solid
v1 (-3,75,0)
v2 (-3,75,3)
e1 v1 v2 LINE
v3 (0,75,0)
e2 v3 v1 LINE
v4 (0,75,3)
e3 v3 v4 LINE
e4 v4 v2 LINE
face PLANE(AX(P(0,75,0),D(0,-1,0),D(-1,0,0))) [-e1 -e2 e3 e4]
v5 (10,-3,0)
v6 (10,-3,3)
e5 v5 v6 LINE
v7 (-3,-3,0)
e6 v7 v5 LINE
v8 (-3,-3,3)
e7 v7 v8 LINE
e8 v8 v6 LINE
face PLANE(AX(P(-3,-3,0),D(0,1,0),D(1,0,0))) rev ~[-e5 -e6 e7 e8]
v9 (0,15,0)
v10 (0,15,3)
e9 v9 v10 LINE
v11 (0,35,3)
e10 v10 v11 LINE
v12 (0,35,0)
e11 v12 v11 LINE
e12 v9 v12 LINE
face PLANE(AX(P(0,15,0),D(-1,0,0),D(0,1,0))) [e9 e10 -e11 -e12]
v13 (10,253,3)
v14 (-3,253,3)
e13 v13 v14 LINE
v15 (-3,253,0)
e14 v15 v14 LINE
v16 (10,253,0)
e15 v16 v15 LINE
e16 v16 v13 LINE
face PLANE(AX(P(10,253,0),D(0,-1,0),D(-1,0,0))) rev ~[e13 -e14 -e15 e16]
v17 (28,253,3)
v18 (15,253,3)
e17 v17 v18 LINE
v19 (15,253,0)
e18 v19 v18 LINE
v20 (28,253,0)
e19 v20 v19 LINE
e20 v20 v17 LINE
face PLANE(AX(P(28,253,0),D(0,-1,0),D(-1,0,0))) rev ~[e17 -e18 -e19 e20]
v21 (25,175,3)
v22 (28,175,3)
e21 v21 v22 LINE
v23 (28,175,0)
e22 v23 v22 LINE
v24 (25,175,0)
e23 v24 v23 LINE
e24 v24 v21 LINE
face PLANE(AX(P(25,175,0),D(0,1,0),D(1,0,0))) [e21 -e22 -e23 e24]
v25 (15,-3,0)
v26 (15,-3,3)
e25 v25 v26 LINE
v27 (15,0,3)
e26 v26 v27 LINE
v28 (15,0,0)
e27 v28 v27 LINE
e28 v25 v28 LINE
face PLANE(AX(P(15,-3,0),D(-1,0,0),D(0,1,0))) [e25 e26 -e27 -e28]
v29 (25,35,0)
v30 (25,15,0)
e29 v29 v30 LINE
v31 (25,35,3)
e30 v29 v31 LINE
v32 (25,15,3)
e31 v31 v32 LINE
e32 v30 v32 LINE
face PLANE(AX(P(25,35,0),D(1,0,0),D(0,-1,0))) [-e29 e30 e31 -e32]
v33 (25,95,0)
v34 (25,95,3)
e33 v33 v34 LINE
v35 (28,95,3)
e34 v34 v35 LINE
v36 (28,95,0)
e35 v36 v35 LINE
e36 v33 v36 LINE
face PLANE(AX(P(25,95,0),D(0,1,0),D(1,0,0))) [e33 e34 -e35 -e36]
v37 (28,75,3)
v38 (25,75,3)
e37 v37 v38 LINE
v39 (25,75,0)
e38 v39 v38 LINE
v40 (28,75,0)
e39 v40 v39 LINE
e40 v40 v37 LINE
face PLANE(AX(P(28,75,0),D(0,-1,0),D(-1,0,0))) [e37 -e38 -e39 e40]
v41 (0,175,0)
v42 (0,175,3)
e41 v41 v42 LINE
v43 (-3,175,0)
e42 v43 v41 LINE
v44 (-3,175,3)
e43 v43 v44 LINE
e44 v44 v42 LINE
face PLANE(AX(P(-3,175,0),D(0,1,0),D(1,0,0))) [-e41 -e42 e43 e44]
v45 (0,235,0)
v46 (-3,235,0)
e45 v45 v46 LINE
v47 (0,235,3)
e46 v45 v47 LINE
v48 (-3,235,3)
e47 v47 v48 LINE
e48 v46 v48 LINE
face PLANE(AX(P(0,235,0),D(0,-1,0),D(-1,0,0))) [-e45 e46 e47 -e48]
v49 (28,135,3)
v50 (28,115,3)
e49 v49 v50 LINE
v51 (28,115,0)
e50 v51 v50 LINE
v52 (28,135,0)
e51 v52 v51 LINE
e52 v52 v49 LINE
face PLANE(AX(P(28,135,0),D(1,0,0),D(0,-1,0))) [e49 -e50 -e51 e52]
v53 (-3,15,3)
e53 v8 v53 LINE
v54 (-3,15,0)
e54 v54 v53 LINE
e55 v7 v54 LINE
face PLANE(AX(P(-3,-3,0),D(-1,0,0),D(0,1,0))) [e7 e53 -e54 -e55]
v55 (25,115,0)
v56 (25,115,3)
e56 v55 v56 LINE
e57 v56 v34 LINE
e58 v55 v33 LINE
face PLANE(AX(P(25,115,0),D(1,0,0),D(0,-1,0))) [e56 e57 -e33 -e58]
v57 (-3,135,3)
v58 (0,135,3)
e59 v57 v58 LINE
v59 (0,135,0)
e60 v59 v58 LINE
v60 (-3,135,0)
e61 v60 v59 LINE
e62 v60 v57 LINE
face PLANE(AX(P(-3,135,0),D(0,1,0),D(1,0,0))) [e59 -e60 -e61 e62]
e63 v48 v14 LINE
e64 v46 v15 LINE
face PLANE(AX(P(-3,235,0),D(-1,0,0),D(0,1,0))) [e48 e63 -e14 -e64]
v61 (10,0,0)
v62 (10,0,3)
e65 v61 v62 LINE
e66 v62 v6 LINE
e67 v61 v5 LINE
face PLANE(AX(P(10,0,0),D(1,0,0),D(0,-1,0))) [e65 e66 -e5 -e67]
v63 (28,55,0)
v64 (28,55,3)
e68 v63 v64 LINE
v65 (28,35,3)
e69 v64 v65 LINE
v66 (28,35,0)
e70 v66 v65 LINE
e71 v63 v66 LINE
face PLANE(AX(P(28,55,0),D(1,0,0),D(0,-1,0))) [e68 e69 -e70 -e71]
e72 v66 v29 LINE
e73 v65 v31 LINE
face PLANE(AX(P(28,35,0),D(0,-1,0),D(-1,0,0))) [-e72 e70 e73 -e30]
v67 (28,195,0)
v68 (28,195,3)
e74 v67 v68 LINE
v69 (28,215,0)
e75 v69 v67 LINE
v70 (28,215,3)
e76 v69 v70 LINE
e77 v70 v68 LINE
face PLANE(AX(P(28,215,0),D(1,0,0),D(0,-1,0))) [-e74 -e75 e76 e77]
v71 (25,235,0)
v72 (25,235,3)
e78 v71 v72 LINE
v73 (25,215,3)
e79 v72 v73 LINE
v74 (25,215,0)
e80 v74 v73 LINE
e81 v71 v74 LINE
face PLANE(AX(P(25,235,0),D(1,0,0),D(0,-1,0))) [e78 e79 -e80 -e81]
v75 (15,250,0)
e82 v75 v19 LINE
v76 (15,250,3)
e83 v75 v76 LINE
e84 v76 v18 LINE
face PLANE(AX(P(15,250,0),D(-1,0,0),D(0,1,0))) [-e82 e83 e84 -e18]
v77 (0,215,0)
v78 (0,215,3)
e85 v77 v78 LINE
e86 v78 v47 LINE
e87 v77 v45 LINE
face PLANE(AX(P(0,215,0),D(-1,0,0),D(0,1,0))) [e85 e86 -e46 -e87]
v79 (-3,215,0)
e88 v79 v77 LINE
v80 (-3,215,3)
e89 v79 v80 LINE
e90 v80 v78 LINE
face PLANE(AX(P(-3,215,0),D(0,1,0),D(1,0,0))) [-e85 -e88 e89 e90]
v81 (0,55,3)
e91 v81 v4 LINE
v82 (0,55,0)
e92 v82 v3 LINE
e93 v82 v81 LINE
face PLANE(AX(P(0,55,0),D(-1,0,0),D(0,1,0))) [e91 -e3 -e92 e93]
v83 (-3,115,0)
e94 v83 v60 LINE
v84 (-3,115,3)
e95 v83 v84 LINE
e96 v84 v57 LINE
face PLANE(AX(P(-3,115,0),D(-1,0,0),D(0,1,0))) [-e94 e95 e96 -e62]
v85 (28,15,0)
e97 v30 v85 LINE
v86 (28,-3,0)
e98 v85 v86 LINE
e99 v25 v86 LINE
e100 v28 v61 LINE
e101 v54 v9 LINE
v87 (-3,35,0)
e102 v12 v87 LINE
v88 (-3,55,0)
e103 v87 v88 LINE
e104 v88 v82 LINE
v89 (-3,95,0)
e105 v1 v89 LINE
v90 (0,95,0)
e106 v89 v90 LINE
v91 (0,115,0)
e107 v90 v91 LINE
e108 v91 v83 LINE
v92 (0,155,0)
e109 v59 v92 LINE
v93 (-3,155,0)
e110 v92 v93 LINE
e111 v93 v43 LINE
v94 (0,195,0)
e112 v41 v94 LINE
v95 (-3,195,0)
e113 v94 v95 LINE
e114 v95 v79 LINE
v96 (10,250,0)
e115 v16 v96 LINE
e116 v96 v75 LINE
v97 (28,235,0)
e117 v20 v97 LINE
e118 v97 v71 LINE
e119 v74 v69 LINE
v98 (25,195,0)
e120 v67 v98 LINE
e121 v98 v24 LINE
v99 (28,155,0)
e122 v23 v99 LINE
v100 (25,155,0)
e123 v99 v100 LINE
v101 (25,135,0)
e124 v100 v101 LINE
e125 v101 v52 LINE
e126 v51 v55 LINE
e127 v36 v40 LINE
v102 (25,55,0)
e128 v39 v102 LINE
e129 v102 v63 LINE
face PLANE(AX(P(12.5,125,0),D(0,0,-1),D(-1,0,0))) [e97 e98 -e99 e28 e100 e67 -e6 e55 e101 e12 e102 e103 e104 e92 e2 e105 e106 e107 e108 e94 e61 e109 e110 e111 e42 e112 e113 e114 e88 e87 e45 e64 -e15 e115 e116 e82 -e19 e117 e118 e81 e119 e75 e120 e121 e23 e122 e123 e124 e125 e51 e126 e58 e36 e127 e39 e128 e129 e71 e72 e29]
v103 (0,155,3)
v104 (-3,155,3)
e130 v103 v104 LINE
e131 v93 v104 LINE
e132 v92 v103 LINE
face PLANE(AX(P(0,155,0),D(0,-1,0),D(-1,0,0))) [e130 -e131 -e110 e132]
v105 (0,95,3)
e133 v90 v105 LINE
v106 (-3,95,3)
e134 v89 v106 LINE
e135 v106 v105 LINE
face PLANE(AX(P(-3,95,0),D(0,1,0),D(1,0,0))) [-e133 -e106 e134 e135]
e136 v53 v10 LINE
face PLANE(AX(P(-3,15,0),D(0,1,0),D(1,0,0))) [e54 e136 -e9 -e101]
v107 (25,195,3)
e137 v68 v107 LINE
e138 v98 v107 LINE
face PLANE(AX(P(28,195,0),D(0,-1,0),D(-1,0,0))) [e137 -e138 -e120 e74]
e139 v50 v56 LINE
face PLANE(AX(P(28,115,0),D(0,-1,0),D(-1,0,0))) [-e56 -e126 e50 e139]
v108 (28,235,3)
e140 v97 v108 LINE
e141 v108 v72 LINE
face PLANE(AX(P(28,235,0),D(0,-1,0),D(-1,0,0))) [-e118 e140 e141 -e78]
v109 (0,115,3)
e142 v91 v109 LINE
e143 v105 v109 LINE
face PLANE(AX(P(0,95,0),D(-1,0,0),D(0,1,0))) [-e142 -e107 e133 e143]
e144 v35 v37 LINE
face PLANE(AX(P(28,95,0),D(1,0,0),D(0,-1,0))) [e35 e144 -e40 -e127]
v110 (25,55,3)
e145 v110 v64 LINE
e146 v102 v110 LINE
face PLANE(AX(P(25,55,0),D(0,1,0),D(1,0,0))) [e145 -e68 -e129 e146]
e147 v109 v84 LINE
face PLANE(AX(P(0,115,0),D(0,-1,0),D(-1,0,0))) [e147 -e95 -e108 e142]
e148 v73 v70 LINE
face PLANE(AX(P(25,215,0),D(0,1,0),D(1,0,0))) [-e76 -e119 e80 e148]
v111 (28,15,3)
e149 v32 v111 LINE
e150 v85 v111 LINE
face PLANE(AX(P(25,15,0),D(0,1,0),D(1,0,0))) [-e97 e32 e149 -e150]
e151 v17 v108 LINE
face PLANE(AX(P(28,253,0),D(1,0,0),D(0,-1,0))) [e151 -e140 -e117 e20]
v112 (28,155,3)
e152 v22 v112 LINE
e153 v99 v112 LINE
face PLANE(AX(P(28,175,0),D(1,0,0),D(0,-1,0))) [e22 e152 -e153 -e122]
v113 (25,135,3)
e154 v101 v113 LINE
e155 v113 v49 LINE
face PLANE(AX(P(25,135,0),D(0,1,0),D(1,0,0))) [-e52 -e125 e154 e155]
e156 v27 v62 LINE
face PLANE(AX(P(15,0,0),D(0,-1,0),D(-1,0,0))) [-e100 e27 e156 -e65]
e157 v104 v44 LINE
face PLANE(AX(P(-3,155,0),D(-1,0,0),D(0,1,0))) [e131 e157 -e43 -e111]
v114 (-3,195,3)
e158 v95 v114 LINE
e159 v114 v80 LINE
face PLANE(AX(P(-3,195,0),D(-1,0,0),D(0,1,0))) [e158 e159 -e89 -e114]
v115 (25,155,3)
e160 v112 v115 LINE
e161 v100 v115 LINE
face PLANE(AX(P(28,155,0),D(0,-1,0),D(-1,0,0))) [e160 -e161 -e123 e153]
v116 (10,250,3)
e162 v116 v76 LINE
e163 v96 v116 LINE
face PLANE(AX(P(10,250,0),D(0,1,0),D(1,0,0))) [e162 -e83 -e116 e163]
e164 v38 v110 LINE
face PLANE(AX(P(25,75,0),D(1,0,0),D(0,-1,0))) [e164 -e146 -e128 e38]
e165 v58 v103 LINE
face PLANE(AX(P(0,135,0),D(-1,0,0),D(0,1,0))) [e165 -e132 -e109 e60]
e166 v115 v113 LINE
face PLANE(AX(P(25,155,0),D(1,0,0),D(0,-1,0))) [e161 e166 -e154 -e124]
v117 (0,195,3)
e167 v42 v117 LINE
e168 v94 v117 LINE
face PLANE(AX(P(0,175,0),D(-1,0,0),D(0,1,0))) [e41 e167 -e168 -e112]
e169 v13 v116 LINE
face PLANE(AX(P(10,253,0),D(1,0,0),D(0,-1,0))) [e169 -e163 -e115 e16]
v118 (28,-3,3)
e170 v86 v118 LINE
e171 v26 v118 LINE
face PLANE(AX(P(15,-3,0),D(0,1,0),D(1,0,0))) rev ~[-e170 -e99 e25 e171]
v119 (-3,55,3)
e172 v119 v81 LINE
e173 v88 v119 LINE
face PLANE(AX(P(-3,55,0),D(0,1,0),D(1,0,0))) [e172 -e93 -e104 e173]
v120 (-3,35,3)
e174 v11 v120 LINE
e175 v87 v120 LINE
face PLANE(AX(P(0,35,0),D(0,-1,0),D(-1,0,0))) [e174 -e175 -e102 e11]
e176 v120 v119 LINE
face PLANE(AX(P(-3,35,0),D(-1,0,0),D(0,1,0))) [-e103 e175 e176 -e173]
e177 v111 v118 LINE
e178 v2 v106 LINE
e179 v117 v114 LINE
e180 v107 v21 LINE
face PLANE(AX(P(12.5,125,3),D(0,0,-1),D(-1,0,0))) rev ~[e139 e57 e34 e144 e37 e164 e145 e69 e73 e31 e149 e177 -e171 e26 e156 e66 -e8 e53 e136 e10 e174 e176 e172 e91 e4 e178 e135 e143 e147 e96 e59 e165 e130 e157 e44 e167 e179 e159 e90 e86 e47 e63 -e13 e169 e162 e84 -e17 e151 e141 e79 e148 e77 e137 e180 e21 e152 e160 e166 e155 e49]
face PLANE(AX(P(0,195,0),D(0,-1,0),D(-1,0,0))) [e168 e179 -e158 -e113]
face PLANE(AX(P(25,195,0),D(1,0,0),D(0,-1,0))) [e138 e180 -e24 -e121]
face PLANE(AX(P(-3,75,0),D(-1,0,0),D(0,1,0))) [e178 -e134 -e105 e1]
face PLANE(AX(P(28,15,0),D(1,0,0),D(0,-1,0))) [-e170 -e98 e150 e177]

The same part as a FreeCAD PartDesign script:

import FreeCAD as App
import Part
import Sketcher
Q = App.Units.Quantity

doc = App.newDocument("Part")
body = doc.addObject("PartDesign::Body", "Body")

# Sketch on XY plane
sketch1 = body.newObject("Sketcher::SketchObject", "Sketch")
sketch1.AttachmentSupport = (doc.getObject("XY_Plane"), [""])
sketch1.MapMode = "FlatFace"
sketch1.addGeometry([
    Part.LineSegment(App.Vector(15, 250, 0), App.Vector(10, 250, 0)),  # 0
    Part.LineSegment(App.Vector(10, 250, 0), App.Vector(10, 253, 0)),  # 1
    Part.LineSegment(App.Vector(10, 253, 0), App.Vector(-3, 253, 0)),  # 2
    Part.LineSegment(App.Vector(-3, 253, 0), App.Vector(-3, 235, 0)),  # 3
    Part.LineSegment(App.Vector(-3, 235, 0), App.Vector(0, 235, 0)),  # 4
    Part.LineSegment(App.Vector(0, 235, 0), App.Vector(0, 215, 0)),  # 5
    Part.LineSegment(App.Vector(0, 215, 0), App.Vector(-3, 215, 0)),  # 6
    Part.LineSegment(App.Vector(-3, 215, 0), App.Vector(-3, 195, 0)),  # 7
    Part.LineSegment(App.Vector(-3, 195, 0), App.Vector(0, 195, 0)),  # 8
    Part.LineSegment(App.Vector(0, 195, 0), App.Vector(0, 175, 0)),  # 9
    Part.LineSegment(App.Vector(0, 175, 0), App.Vector(-3, 175, 0)),  # 10
    Part.LineSegment(App.Vector(-3, 175, 0), App.Vector(-3, 155, 0)),  # 11
    Part.LineSegment(App.Vector(-3, 155, 0), App.Vector(0, 155, 0)),  # 12
    Part.LineSegment(App.Vector(0, 155, 0), App.Vector(0, 135, 0)),  # 13
    Part.LineSegment(App.Vector(0, 135, 0), App.Vector(-3, 135, 0)),  # 14
    Part.LineSegment(App.Vector(-3, 135, 0), App.Vector(-3, 115, 0)),  # 15
    Part.LineSegment(App.Vector(-3, 115, 0), App.Vector(0, 115, 0)),  # 16
    Part.LineSegment(App.Vector(0, 115, 0), App.Vector(0, 95, 0)),  # 17
    Part.LineSegment(App.Vector(0, 95, 0), App.Vector(-3, 95, 0)),  # 18
    Part.LineSegment(App.Vector(-3, 95, 0), App.Vector(-3, 75, 0)),  # 19
    Part.LineSegment(App.Vector(-3, 75, 0), App.Vector(0, 75, 0)),  # 20
    Part.LineSegment(App.Vector(0, 75, 0), App.Vector(0, 55, 0)),  # 21
    Part.LineSegment(App.Vector(0, 55, 0), App.Vector(-3, 55, 0)),  # 22
    Part.LineSegment(App.Vector(-3, 55, 0), App.Vector(-3, 35, 0)),  # 23
    Part.LineSegment(App.Vector(-3, 35, 0), App.Vector(0, 35, 0)),  # 24
    Part.LineSegment(App.Vector(0, 35, 0), App.Vector(0, 15, 0)),  # 25
    Part.LineSegment(App.Vector(0, 15, 0), App.Vector(-3, 15, 0)),  # 26
    Part.LineSegment(App.Vector(-3, 15, 0), App.Vector(-3, -3, 0)),  # 27
    Part.LineSegment(App.Vector(-3, -3, 0), App.Vector(10, -3, 0)),  # 28
    Part.LineSegment(App.Vector(10, -3, 0), App.Vector(10, 0, 0)),  # 29
    Part.LineSegment(App.Vector(10, 0, 0), App.Vector(15, 0, 0)),  # 30
    Part.LineSegment(App.Vector(15, 0, 0), App.Vector(15, -3, 0)),  # 31
    Part.LineSegment(App.Vector(15, -3, 0), App.Vector(28, -3, 0)),  # 32
    Part.LineSegment(App.Vector(28, -3, 0), App.Vector(28, 15, 0)),  # 33
    Part.LineSegment(App.Vector(28, 15, 0), App.Vector(25, 15, 0)),  # 34
    Part.LineSegment(App.Vector(25, 15, 0), App.Vector(25, 35, 0)),  # 35
    Part.LineSegment(App.Vector(25, 35, 0), App.Vector(28, 35, 0)),  # 36
    Part.LineSegment(App.Vector(28, 35, 0), App.Vector(28, 55, 0)),  # 37
    Part.LineSegment(App.Vector(28, 55, 0), App.Vector(25, 55, 0)),  # 38
    Part.LineSegment(App.Vector(25, 55, 0), App.Vector(25, 75, 0)),  # 39
    Part.LineSegment(App.Vector(25, 75, 0), App.Vector(28, 75, 0)),  # 40
    Part.LineSegment(App.Vector(28, 75, 0), App.Vector(28, 95, 0)),  # 41
    Part.LineSegment(App.Vector(28, 95, 0), App.Vector(25, 95, 0)),  # 42
    Part.LineSegment(App.Vector(25, 95, 0), App.Vector(25, 115, 0)),  # 43
    Part.LineSegment(App.Vector(25, 115, 0), App.Vector(28, 115, 0)),  # 44
    Part.LineSegment(App.Vector(28, 115, 0), App.Vector(28, 135, 0)),  # 45
    Part.LineSegment(App.Vector(28, 135, 0), App.Vector(25, 135, 0)),  # 46
    Part.LineSegment(App.Vector(25, 135, 0), App.Vector(25, 155, 0)),  # 47
    Part.LineSegment(App.Vector(25, 155, 0), App.Vector(28, 155, 0)),  # 48
    Part.LineSegment(App.Vector(28, 155, 0), App.Vector(28, 175, 0)),  # 49
    Part.LineSegment(App.Vector(28, 175, 0), App.Vector(25, 175, 0)),  # 50
    Part.LineSegment(App.Vector(25, 175, 0), App.Vector(25, 195, 0)),  # 51
    Part.LineSegment(App.Vector(25, 195, 0), App.Vector(28, 195, 0)),  # 52
    Part.LineSegment(App.Vector(28, 195, 0), App.Vector(28, 215, 0)),  # 53
    Part.LineSegment(App.Vector(28, 215, 0), App.Vector(25, 215, 0)),  # 54
    Part.LineSegment(App.Vector(25, 215, 0), App.Vector(25, 235, 0)),  # 55
    Part.LineSegment(App.Vector(25, 235, 0), App.Vector(28, 235, 0)),  # 56
    Part.LineSegment(App.Vector(28, 235, 0), App.Vector(28, 253, 0)),  # 57
    Part.LineSegment(App.Vector(28, 253, 0), App.Vector(15, 253, 0)),  # 58
    Part.LineSegment(App.Vector(15, 253, 0), App.Vector(15, 250, 0)),  # 59
], False)
sketch1.addConstraint([
    Sketcher.Constraint("Coincident", 0, 2, 1, 1),
    Sketcher.Constraint("Coincident", 1, 2, 2, 1),
    Sketcher.Constraint("Coincident", 2, 2, 3, 1),
    Sketcher.Constraint("Coincident", 3, 2, 4, 1),
    Sketcher.Constraint("Coincident", 4, 2, 5, 1),
    Sketcher.Constraint("Coincident", 5, 2, 6, 1),
    Sketcher.Constraint("Coincident", 6, 2, 7, 1),
    Sketcher.Constraint("Coincident", 7, 2, 8, 1),
    Sketcher.Constraint("Coincident", 8, 2, 9, 1),
    Sketcher.Constraint("Coincident", 9, 2, 10, 1),
    Sketcher.Constraint("Coincident", 10, 2, 11, 1),
    Sketcher.Constraint("Coincident", 11, 2, 12, 1),
    Sketcher.Constraint("Coincident", 12, 2, 13, 1),
    Sketcher.Constraint("Coincident", 13, 2, 14, 1),
    Sketcher.Constraint("Coincident", 14, 2, 15, 1),
    Sketcher.Constraint("Coincident", 15, 2, 16, 1),
    Sketcher.Constraint("Coincident", 16, 2, 17, 1),
    Sketcher.Constraint("Coincident", 17, 2, 18, 1),
    Sketcher.Constraint("Coincident", 18, 2, 19, 1),
    Sketcher.Constraint("Coincident", 19, 2, 20, 1),
    Sketcher.Constraint("Coincident", 20, 2, 21, 1),
    Sketcher.Constraint("Coincident", 21, 2, 22, 1),
    Sketcher.Constraint("Coincident", 22, 2, 23, 1),
    Sketcher.Constraint("Coincident", 23, 2, 24, 1),
    Sketcher.Constraint("Coincident", 24, 2, 25, 1),
    Sketcher.Constraint("Coincident", 25, 2, 26, 1),
    Sketcher.Constraint("Coincident", 26, 2, 27, 1),
    Sketcher.Constraint("Coincident", 27, 2, 28, 1),
    Sketcher.Constraint("Coincident", 28, 2, 29, 1),
    Sketcher.Constraint("Coincident", 29, 2, 30, 1),
    Sketcher.Constraint("Coincident", 30, 2, 31, 1),
    Sketcher.Constraint("Coincident", 31, 2, 32, 1),
    Sketcher.Constraint("Coincident", 32, 2, 33, 1),
    Sketcher.Constraint("Coincident", 33, 2, 34, 1),
    Sketcher.Constraint("Coincident", 34, 2, 35, 1),
    Sketcher.Constraint("Coincident", 35, 2, 36, 1),
    Sketcher.Constraint("Coincident", 36, 2, 37, 1),
    Sketcher.Constraint("Coincident", 37, 2, 38, 1),
    Sketcher.Constraint("Coincident", 38, 2, 39, 1),
    Sketcher.Constraint("Coincident", 39, 2, 40, 1),
    Sketcher.Constraint("Coincident", 40, 2, 41, 1),
    Sketcher.Constraint("Coincident", 41, 2, 42, 1),
    Sketcher.Constraint("Coincident", 42, 2, 43, 1),
    Sketcher.Constraint("Coincident", 43, 2, 44, 1),
    Sketcher.Constraint("Coincident", 44, 2, 45, 1),
    Sketcher.Constraint("Coincident", 45, 2, 46, 1),
    Sketcher.Constraint("Coincident", 46, 2, 47, 1),
    Sketcher.Constraint("Coincident", 47, 2, 48, 1),
    Sketcher.Constraint("Coincident", 48, 2, 49, 1),
    Sketcher.Constraint("Coincident", 49, 2, 50, 1),
    Sketcher.Constraint("Coincident", 50, 2, 51, 1),
    Sketcher.Constraint("Coincident", 51, 2, 52, 1),
    Sketcher.Constraint("Coincident", 52, 2, 53, 1),
    Sketcher.Constraint("Coincident", 53, 2, 54, 1),
    Sketcher.Constraint("Coincident", 54, 2, 55, 1),
    Sketcher.Constraint("Coincident", 55, 2, 56, 1),
    Sketcher.Constraint("Coincident", 56, 2, 57, 1),
    Sketcher.Constraint("Coincident", 57, 2, 58, 1),
    Sketcher.Constraint("Coincident", 58, 2, 59, 1),
    Sketcher.Constraint("Coincident", 59, 2, 0, 1),
    Sketcher.Constraint("Horizontal", 0),
    Sketcher.Constraint("Vertical", 1),
    Sketcher.Constraint("Horizontal", 2),
    Sketcher.Constraint("Vertical", 3),
    Sketcher.Constraint("Horizontal", 4),
    Sketcher.Constraint("Vertical", 5),
    Sketcher.Constraint("Horizontal", 6),
    Sketcher.Constraint("Vertical", 7),
    Sketcher.Constraint("Horizontal", 8),
    Sketcher.Constraint("Vertical", 9),
    Sketcher.Constraint("Horizontal", 10),
    Sketcher.Constraint("Vertical", 11),
    Sketcher.Constraint("Horizontal", 12),
    Sketcher.Constraint("Vertical", 13),
    Sketcher.Constraint("Horizontal", 14),
    Sketcher.Constraint("Vertical", 15),
    Sketcher.Constraint("Horizontal", 16),
    Sketcher.Constraint("Vertical", 17),
    Sketcher.Constraint("Horizontal", 18),
    Sketcher.Constraint("Vertical", 19),
    Sketcher.Constraint("Horizontal", 20),
    Sketcher.Constraint("Vertical", 21),
    Sketcher.Constraint("Horizontal", 22),
    Sketcher.Constraint("Vertical", 23),
    Sketcher.Constraint("Horizontal", 24),
    Sketcher.Constraint("Vertical", 25),
    Sketcher.Constraint("Horizontal", 26),
    Sketcher.Constraint("Vertical", 27),
    Sketcher.Constraint("Horizontal", 28),
    Sketcher.Constraint("Vertical", 29),
    Sketcher.Constraint("Horizontal", 30),
    Sketcher.Constraint("Vertical", 31),
    Sketcher.Constraint("Horizontal", 32),
    Sketcher.Constraint("Vertical", 33),
    Sketcher.Constraint("Horizontal", 34),
    Sketcher.Constraint("Vertical", 35),
    Sketcher.Constraint("Horizontal", 36),
    Sketcher.Constraint("Vertical", 37),
    Sketcher.Constraint("Horizontal", 38),
    Sketcher.Constraint("Vertical", 39),
    Sketcher.Constraint("Horizontal", 40),
    Sketcher.Constraint("Vertical", 41),
    Sketcher.Constraint("Horizontal", 42),
    Sketcher.Constraint("Vertical", 43),
    Sketcher.Constraint("Horizontal", 44),
    Sketcher.Constraint("Vertical", 45),
    Sketcher.Constraint("Horizontal", 46),
    Sketcher.Constraint("Vertical", 47),
    Sketcher.Constraint("Horizontal", 48),
    Sketcher.Constraint("Vertical", 49),
    Sketcher.Constraint("Horizontal", 50),
    Sketcher.Constraint("Vertical", 51),
    Sketcher.Constraint("Horizontal", 52),
    Sketcher.Constraint("Vertical", 53),
    Sketcher.Constraint("Horizontal", 54),
    Sketcher.Constraint("Vertical", 55),
    Sketcher.Constraint("Horizontal", 56),
    Sketcher.Constraint("Vertical", 57),
    Sketcher.Constraint("Horizontal", 58),
    Sketcher.Constraint("Vertical", 59),
    Sketcher.Constraint("PointOnObject", 4, 2, -2),
    Sketcher.Constraint("PointOnObject", 8, 2, -2),
    Sketcher.Constraint("PointOnObject", 12, 2, -2),
    Sketcher.Constraint("PointOnObject", 16, 2, -2),
    Sketcher.Constraint("PointOnObject", 20, 2, -2),
    Sketcher.Constraint("PointOnObject", 24, 2, -2),
    Sketcher.Constraint("PointOnObject", 29, 2, -1),
    Sketcher.Constraint("Horizontal", 28, 2, 31, 2),
    Sketcher.Constraint("Horizontal", 26, 2, 33, 2),
    Sketcher.Constraint("Horizontal", 24, 2, 35, 2),
    Sketcher.Constraint("Horizontal", 22, 2, 37, 2),
    Sketcher.Constraint("Horizontal", 20, 2, 39, 2),
    Sketcher.Constraint("Horizontal", 18, 2, 41, 2),
    Sketcher.Constraint("Horizontal", 16, 2, 43, 2),
    Sketcher.Constraint("Horizontal", 14, 2, 45, 2),
    Sketcher.Constraint("Horizontal", 12, 2, 47, 2),
    Sketcher.Constraint("Horizontal", 10, 2, 49, 2),
    Sketcher.Constraint("Horizontal", 8, 2, 51, 2),
    Sketcher.Constraint("Horizontal", 6, 2, 53, 2),
    Sketcher.Constraint("Horizontal", 4, 2, 55, 2),
    Sketcher.Constraint("Horizontal", 2, 2, 57, 2),
    Sketcher.Constraint("Vertical", 3, 2, 6, 2),
    Sketcher.Constraint("Vertical", 7, 2, 10, 2),
    Sketcher.Constraint("Vertical", 11, 2, 14, 2),
    Sketcher.Constraint("Vertical", 15, 2, 18, 2),
    Sketcher.Constraint("Vertical", 19, 2, 22, 2),
    Sketcher.Constraint("Vertical", 23, 2, 26, 2),
    Sketcher.Constraint("Vertical", 1, 2, 28, 2),
    Sketcher.Constraint("Vertical", 33, 2, 36, 2),
    Sketcher.Constraint("Vertical", 35, 2, 38, 2),
    Sketcher.Constraint("Vertical", 37, 2, 40, 2),
    Sketcher.Constraint("Vertical", 39, 2, 42, 2),
    Sketcher.Constraint("Vertical", 41, 2, 44, 2),
    Sketcher.Constraint("Vertical", 43, 2, 46, 2),
    Sketcher.Constraint("Vertical", 45, 2, 48, 2),
    Sketcher.Constraint("Vertical", 47, 2, 50, 2),
    Sketcher.Constraint("Vertical", 49, 2, 52, 2),
    Sketcher.Constraint("Vertical", 51, 2, 54, 2),
    Sketcher.Constraint("Vertical", 53, 2, 56, 2),
    Sketcher.Constraint("Vertical", 31, 2, 58, 2),
    Sketcher.Constraint("Equal", 28, 32),
    Sketcher.Constraint("Equal", 26, 34),
    Sketcher.Constraint("Equal", 56, 1),
    Sketcher.Constraint("Equal", 5, 7),
    Sketcher.Constraint("Equal", 7, 9),
    Sketcher.Constraint("Equal", 9, 11),
    Sketcher.Constraint("Equal", 11, 13),
    Sketcher.Constraint("Equal", 13, 15),
    Sketcher.Constraint("Equal", 15, 17),
    Sketcher.Constraint("Equal", 17, 19),
    Sketcher.Constraint("Equal", 19, 21),
    Sketcher.Constraint("Equal", 21, 23),
    Sketcher.Constraint("Equal", 23, 25),
    Sketcher.Constraint("Equal", 3, 27),
    Sketcher.Constraint("Equal", 1, 29),
    Sketcher.Constraint("DistanceX", 0, 2, 0, 1, Q("5 mm")),
    Sketcher.Constraint("DistanceX", 2, 2, 2, 1, Q("13 mm")),
    Sketcher.Constraint("DistanceX", 4, 1, 4, 2, Q("3 mm")),
    Sketcher.Constraint("DistanceY", 3, 2, 3, 1, Q("18 mm")),
    Sketcher.Constraint("DistanceY", 5, 2, 5, 1, Q("20 mm")),
])
pad1 = body.newObject("PartDesign::Pad", "Pad")
pad1.Profile = sketch1
pad1.Length = 3

doc.recompute()
